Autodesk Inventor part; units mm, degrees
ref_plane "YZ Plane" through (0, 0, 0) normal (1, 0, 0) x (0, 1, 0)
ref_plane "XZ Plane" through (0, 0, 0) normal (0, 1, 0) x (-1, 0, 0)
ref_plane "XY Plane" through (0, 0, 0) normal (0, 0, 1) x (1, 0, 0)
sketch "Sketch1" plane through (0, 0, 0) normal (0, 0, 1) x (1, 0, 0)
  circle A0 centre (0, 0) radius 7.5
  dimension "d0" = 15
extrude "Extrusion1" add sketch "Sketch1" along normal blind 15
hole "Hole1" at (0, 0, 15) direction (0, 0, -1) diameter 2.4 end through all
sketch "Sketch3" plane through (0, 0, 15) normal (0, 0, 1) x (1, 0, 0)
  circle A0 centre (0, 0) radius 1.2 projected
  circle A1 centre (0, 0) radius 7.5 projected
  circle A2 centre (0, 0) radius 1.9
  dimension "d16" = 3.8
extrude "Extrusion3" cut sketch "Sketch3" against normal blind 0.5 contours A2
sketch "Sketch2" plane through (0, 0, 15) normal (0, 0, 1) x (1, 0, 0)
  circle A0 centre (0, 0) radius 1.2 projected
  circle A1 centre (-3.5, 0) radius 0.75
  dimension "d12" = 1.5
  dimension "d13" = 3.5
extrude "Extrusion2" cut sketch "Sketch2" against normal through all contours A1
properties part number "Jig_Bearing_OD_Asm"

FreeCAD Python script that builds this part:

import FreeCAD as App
import Part
import Sketcher

V = App.Vector
Q = App.Units.Quantity

doc = App.newDocument("Part")
body = doc.addObject("PartDesign::Body", "Body")

# Sketch on XY plane
sketch1 = body.newObject("Sketcher::SketchObject", "Sketch")
sketch1.AttachmentSupport = (doc.getObject("XY_Plane"), [""])
sketch1.MapMode = "FlatFace"
sketch1.addGeometry(Part.Circle(V(0, 0, 0), V(0, 0, 1), 8), False)
sketch1.addConstraint([
    Sketcher.Constraint("Coincident", 0, 3, -1, 1),
    Sketcher.Constraint("Diameter", 0, Q("15 mm")),
])
pad1 = body.newObject("PartDesign::Pad", "Pad")
pad1.Profile = sketch1
pad1.Length = 15

# Sketch on XY plane
sketch2 = body.newObject("Sketcher::SketchObject", "Sketch001")
sketch2.AttachmentSupport = (doc.getObject("XY_Plane"), [""])
sketch2.MapMode = "FlatFace"
sketch2.AttachmentOffset = App.Placement(V(0, 0, 15), App.Rotation())
sketch2.addGeometry(Part.Circle(V(0, 0, 0), V(0, 0, 1), 1.2), False)
sketch2.addConstraint([
    Sketcher.Constraint("Coincident", 0, 3, -1, 1),
    Sketcher.Constraint("Diameter", 0, Q("2.4 mm")),
])
doc.recompute()
hole = body.newObject("PartDesign::Hole", "Hole")
hole.Profile = sketch2
hole.ThreadType = "None"
hole.Diameter = 2.4
hole.DepthType = "ThroughAll"

# Sketch on XY plane
sketch3 = body.newObject("Sketcher::SketchObject", "Sketch002")
sketch3.AttachmentSupport = (doc.getObject("XY_Plane"), [""])
sketch3.MapMode = "FlatFace"
sketch3.AttachmentOffset = App.Placement(V(0, 0, 15), App.Rotation())
sketch3.addGeometry([
    Part.Circle(V(0, 0, 0), V(0, 0, 1), 1.9),
    Part.Circle(V(0, 0, 0), V(0, 0, 1), 1.2),
], False)
sketch3.addConstraint([
    Sketcher.Constraint("Coincident", 0, 3, -1, 1),
    Sketcher.Constraint("Coincident", 1, 3, -1, 1),
    Sketcher.Constraint("Diameter", 0, Q("3.8 mm")),
    Sketcher.Constraint("Diameter", 1, Q("2.4 mm")),
])
pocket1 = body.newObject("PartDesign::Pocket", "Pocket")
pocket1.Profile = sketch3
pocket1.Length = 0.5

# Sketch on XY plane
sketch4 = body.newObject("Sketcher::SketchObject", "Sketch003")
sketch4.AttachmentSupport = (doc.getObject("XY_Plane"), [""])
sketch4.MapMode = "FlatFace"
sketch4.AttachmentOffset = App.Placement(V(0, 0, 15), App.Rotation())
sketch4.addGeometry(Part.Circle(V(-3.5, 0, 0), V(0, 0, 1), 0.8), False)
sketch4.addConstraint([
    Sketcher.Constraint("PointOnObject", 0, 3, -1),
    Sketcher.Constraint("Diameter", 0, Q("1.5 mm")),
    Sketcher.Constraint("DistanceX", 0, 3, -1, 1, Q("3.5 mm")),
])
pocket2 = body.newObject("PartDesign::Pocket", "Pocket001")
pocket2.Profile = sketch4
pocket2.Type = "ThroughAll"

doc.recompute()
